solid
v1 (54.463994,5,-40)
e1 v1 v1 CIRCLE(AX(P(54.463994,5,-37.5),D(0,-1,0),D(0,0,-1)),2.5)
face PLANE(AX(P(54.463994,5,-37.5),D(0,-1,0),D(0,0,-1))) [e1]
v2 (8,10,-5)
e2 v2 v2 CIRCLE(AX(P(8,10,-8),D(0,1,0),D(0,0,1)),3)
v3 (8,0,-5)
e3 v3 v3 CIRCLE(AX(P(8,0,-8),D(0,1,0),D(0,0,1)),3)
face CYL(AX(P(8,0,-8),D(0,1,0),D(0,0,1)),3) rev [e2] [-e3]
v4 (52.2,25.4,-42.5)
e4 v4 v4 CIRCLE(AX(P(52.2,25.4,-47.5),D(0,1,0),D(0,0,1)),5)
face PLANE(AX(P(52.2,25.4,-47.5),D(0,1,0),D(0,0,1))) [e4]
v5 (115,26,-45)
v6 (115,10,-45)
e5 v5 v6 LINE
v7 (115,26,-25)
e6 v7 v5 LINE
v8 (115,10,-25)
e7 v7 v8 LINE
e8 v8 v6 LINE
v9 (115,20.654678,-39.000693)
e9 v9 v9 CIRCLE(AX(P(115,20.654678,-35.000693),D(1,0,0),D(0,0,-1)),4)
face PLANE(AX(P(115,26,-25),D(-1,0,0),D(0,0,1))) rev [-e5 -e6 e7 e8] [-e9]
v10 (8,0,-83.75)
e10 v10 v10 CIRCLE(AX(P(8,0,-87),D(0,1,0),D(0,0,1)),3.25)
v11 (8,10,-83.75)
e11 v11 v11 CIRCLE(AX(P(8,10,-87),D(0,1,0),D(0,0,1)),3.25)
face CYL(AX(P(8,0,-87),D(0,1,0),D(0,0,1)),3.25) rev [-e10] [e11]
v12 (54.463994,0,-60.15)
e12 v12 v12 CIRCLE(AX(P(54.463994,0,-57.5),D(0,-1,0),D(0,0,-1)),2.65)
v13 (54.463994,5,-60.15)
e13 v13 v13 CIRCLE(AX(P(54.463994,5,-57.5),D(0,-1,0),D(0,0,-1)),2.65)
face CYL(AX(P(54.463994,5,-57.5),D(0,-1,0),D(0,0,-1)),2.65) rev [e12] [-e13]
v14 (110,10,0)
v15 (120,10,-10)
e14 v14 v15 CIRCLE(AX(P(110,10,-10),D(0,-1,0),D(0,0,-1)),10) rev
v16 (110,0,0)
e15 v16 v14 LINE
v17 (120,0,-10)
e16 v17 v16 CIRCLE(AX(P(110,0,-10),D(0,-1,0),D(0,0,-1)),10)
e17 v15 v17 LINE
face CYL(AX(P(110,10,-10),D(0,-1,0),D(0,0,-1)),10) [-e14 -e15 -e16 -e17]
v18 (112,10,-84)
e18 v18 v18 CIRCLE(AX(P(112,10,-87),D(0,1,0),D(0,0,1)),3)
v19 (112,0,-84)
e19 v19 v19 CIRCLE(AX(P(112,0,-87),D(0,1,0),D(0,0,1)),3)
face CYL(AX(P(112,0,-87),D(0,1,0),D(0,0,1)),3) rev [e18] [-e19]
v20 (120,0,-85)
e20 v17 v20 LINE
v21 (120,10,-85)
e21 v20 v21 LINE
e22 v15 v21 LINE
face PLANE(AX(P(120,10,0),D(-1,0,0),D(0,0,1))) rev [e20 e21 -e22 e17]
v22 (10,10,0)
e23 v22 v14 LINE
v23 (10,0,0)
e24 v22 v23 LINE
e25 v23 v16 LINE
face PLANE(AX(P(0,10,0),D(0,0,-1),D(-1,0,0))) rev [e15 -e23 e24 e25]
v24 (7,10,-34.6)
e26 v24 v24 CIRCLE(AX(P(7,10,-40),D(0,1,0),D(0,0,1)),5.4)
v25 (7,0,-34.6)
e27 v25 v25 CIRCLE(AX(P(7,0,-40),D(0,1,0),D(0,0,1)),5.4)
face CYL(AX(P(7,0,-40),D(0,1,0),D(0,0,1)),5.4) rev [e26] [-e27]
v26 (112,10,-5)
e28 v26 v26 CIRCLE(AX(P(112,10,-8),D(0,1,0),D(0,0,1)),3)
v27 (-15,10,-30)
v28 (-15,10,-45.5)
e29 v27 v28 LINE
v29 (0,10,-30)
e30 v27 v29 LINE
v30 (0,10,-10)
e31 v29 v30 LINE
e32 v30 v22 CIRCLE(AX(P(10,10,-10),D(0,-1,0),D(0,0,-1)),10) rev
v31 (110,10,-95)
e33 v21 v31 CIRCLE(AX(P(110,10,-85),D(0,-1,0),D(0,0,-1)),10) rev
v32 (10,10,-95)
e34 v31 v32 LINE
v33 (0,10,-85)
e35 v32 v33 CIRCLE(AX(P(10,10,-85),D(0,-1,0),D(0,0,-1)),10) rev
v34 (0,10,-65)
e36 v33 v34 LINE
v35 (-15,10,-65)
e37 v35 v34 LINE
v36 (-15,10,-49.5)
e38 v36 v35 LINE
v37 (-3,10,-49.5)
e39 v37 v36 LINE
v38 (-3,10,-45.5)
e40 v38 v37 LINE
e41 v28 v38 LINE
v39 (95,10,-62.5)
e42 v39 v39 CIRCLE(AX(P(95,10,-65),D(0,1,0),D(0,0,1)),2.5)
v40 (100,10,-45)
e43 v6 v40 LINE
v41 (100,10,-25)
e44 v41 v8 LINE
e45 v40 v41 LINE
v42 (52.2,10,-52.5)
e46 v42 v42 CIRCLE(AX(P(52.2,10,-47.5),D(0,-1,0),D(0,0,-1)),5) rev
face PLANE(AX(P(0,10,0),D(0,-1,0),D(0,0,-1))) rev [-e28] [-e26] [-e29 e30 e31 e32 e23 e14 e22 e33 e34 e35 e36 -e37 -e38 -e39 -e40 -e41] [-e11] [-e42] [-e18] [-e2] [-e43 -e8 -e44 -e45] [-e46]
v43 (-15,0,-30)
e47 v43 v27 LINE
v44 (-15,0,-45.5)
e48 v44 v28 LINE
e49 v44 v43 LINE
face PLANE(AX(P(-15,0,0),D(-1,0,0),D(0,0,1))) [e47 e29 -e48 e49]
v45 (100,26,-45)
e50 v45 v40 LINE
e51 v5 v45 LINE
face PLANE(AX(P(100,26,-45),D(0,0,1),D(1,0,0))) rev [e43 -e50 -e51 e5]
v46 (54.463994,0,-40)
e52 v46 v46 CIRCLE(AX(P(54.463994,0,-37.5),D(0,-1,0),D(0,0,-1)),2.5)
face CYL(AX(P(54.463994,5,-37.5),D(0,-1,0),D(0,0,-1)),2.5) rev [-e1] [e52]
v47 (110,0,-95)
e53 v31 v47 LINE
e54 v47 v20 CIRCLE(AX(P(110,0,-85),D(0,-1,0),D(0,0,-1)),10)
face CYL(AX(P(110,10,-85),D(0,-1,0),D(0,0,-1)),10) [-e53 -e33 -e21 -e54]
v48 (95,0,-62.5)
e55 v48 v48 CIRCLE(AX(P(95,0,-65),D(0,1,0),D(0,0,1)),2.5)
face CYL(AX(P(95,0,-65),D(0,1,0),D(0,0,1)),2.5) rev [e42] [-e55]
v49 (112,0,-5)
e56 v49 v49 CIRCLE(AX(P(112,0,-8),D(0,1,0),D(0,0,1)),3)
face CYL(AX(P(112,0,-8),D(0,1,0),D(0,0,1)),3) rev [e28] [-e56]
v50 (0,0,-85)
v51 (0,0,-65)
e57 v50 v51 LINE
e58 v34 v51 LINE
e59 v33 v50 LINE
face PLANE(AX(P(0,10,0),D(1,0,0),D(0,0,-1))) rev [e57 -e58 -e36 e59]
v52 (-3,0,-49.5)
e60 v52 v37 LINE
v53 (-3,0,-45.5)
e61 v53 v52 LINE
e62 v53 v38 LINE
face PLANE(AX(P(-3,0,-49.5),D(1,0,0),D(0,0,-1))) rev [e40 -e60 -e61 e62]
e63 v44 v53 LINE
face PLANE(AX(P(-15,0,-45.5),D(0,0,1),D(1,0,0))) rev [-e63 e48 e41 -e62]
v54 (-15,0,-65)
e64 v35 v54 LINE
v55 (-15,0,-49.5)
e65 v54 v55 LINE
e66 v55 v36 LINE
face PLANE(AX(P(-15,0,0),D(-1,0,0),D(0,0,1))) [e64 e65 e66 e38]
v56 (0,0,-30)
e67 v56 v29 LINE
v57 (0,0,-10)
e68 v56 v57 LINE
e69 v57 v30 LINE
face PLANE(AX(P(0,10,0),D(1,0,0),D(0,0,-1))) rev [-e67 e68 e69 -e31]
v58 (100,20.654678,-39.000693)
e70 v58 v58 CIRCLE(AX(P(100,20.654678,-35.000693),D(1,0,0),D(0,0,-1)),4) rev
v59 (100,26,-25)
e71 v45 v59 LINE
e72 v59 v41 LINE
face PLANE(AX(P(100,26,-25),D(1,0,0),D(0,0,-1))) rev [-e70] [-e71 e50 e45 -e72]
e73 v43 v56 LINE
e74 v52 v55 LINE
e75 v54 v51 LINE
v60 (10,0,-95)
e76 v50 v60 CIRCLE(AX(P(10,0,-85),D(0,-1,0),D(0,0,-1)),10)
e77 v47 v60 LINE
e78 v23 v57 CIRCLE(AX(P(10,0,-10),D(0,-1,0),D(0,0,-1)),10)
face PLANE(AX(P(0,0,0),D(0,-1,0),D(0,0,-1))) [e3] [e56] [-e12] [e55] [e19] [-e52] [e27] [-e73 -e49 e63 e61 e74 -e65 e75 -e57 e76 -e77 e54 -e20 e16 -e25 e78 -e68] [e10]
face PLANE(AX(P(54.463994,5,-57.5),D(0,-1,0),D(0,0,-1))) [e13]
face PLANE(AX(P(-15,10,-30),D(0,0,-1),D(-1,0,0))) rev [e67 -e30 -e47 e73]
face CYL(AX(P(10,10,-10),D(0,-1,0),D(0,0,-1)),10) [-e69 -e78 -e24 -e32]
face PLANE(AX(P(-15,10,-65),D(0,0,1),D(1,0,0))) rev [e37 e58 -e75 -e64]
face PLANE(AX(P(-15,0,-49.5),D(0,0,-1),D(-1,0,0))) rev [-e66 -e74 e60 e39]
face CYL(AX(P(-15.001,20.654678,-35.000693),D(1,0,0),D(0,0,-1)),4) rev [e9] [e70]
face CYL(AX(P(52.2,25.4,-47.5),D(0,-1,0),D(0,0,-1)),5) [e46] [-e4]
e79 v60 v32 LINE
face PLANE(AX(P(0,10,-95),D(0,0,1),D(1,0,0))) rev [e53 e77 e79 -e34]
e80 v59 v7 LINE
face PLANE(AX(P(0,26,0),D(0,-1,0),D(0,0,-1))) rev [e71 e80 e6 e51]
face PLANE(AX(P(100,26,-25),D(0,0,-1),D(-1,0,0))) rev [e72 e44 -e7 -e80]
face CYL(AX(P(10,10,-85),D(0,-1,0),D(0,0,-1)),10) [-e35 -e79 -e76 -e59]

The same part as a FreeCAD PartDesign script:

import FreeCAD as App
import Part
import Sketcher
from FreeCAD import Vector
Q = App.Units.Quantity


def edges_at(feature, points):
    """Names of the edges that pass closest to the given points."""
    edges = feature.Shape.Edges
    near = lambda p: min(range(len(edges)), key=lambda i: edges[i].distToShape(Part.Vertex(*p))[0])
    return sorted({f"Edge{near(p) + 1}" for p in points})

doc = App.newDocument("Part")
body = doc.addObject("PartDesign::Body", "Body")

sketch1 = body.newObject("Sketcher::SketchObject", "Sketch")
sketch1.AttachmentSupport = (doc.getObject("XZ_Plane"), [""])
sketch1.MapMode = "FlatFace"
sketch1.addGeometry(Part.LineSegment(Vector(0, -95, 0), Vector(0, 0, 0)), False)
sketch1.addGeometry(Part.LineSegment(Vector(0, 0, 0), Vector(120, 0, 0)), False)
sketch1.addGeometry(Part.LineSegment(Vector(120, 0, 0), Vector(120, -95, 0)), False)
sketch1.addGeometry(Part.LineSegment(Vector(120, -95, 0), Vector(0, -95, 0)), False)
sketch1.addConstraint(Sketcher.Constraint("Coincident", 0, 2, 1, 1))
sketch1.addConstraint(Sketcher.Constraint("Coincident", 1, 2, 2, 1))
sketch1.addConstraint(Sketcher.Constraint("Coincident", 2, 2, 3, 1))
sketch1.addConstraint(Sketcher.Constraint("Coincident", 3, 2, 0, 1))
sketch1.addConstraint(Sketcher.Constraint("Vertical", 0))
sketch1.addConstraint(Sketcher.Constraint("Horizontal", 1))
sketch1.addConstraint(Sketcher.Constraint("Vertical", 2))
sketch1.addConstraint(Sketcher.Constraint("Horizontal", 3))
sketch1.addConstraint(Sketcher.Constraint("Coincident", 0, 2, -1, 1))
sketch1.addConstraint(Sketcher.Constraint("DistanceX", 1, 1, 1, 2, Q("120 mm")))
sketch1.addConstraint(Sketcher.Constraint("DistanceY", 0, 1, 0, 2, Q("95 mm")))
pad1 = body.newObject("PartDesign::Pad", "Pad")
pad1.Profile = sketch1
pad1.Length = 10
pad1.Reversed = True
doc.recompute()

fillet = body.newObject("PartDesign::Fillet", "Fillet")
fillet.Base = (pad1, edges_at(pad1, [
    (0, 5, -95),
    (120, 5, -95),
    (120, 5, 0),
    (0, 5, 0),
]))
fillet.Radius = 10

sketch2 = body.newObject("Sketcher::SketchObject", "Sketch001")
sketch2.AttachmentSupport = (doc.getObject("XZ_Plane"), [""])
sketch2.MapMode = "FlatFace"
sketch2.AttachmentOffset = App.Placement(Vector(0, 0, -10), App.Rotation())
sketch2.addGeometry(Part.Circle(Vector(52, -48, 0), Vector(0, 0, 1), 5), False)
sketch2.addConstraint(Sketcher.Constraint("Diameter", 0, Q("10 mm")))
sketch2.addConstraint(Sketcher.Constraint("DistanceX", -1, 1, 0, 3, Q("52.2 mm")))
sketch2.addConstraint(Sketcher.Constraint("DistanceY", 0, 3, -1, 1, Q("47.5 mm")))
pad2 = body.newObject("PartDesign::Pad", "Pad001")
pad2.Profile = sketch2
pad2.Length = 15.4
pad2.Reversed = True

sketch3 = body.newObject("Sketcher::SketchObject", "Sketch002")
sketch3.AttachmentSupport = (doc.getObject("XZ_Plane"), [""])
sketch3.MapMode = "FlatFace"
sketch3.AttachmentOffset = App.Placement(Vector(0, 0, -10), App.Rotation())
sketch3.addGeometry(Part.LineSegment(Vector(100, -45, 0), Vector(100, -25, 0)), False)
sketch3.addGeometry(Part.LineSegment(Vector(100, -25, 0), Vector(115, -25, 0)), False)
sketch3.addGeometry(Part.LineSegment(Vector(115, -25, 0), Vector(115, -45, 0)), False)
sketch3.addGeometry(Part.LineSegment(Vector(115, -45, 0), Vector(100, -45, 0)), False)
sketch3.addConstraint(Sketcher.Constraint("Coincident", 0, 2, 1, 1))
sketch3.addConstraint(Sketcher.Constraint("Coincident", 1, 2, 2, 1))
sketch3.addConstraint(Sketcher.Constraint("Coincident", 2, 2, 3, 1))
sketch3.addConstraint(Sketcher.Constraint("Coincident", 3, 2, 0, 1))
sketch3.addConstraint(Sketcher.Constraint("Vertical", 0))
sketch3.addConstraint(Sketcher.Constraint("Horizontal", 1))
sketch3.addConstraint(Sketcher.Constraint("Vertical", 2))
sketch3.addConstraint(Sketcher.Constraint("Horizontal", 3))
sketch3.addConstraint(Sketcher.Constraint("DistanceX", 1, 1, 1, 2, Q("15 mm")))
sketch3.addConstraint(Sketcher.Constraint("DistanceY", 0, 1, 0, 2, Q("20 mm")))
sketch3.addConstraint(Sketcher.Constraint("DistanceX", -1, 1, 0, 2, Q("100 mm")))
sketch3.addConstraint(Sketcher.Constraint("DistanceY", 0, 2, -1, 1, Q("25 mm")))
pad3 = body.newObject("PartDesign::Pad", "Pad002")
pad3.Profile = sketch3
pad3.Length = 16
pad3.Reversed = True

sketch4 = body.newObject("Sketcher::SketchObject", "Sketch003")
sketch4.AttachmentSupport = (doc.getObject("YZ_Plane"), [""])
sketch4.MapMode = "FlatFace"
sketch4.addGeometry(Part.LineSegment(Vector(10, -65, 0), Vector(0, -65, 0)), False)
sketch4.addGeometry(Part.LineSegment(Vector(0, -65, 0), Vector(0, -30, 0)), False)
sketch4.addGeometry(Part.LineSegment(Vector(0, -30, 0), Vector(10, -30, 0)), False)
sketch4.addGeometry(Part.LineSegment(Vector(10, -30, 0), Vector(10, -65, 0)), False)
sketch4.addConstraint(Sketcher.Constraint("Coincident", 0, 2, 1, 1))
sketch4.addConstraint(Sketcher.Constraint("Coincident", 1, 2, 2, 1))
sketch4.addConstraint(Sketcher.Constraint("Coincident", 2, 2, 3, 1))
sketch4.addConstraint(Sketcher.Constraint("Coincident", 3, 2, 0, 1))
sketch4.addConstraint(Sketcher.Constraint("Horizontal", 0))
sketch4.addConstraint(Sketcher.Constraint("Vertical", 1))
sketch4.addConstraint(Sketcher.Constraint("Horizontal", 2))
sketch4.addConstraint(Sketcher.Constraint("Vertical", 3))
sketch4.addConstraint(Sketcher.Constraint("PointOnObject", 0, 2, -2))
sketch4.addConstraint(Sketcher.Constraint("DistanceX", 0, 2, 0, 1, Q("10 mm")))
sketch4.addConstraint(Sketcher.Constraint("DistanceY", 1, 1, 1, 2, Q("35 mm")))
sketch4.addConstraint(Sketcher.Constraint("DistanceY", 0, 2, -1, 1, Q("65 mm")))
pad4 = body.newObject("PartDesign::Pad", "Pad003")
pad4.Profile = sketch4
pad4.Length = 15
pad4.Reversed = True

sketch5 = body.newObject("Sketcher::SketchObject", "Sketch004")
sketch5.AttachmentSupport = (doc.getObject("XZ_Plane"), [""])
sketch5.MapMode = "FlatFace"
sketch5.AttachmentOffset = App.Placement(Vector(0, 0, -10), App.Rotation())
sketch5.addGeometry(Part.LineSegment(Vector(-15, -49.5, 0), Vector(-15, -45.5, 0)), False)
sketch5.addGeometry(Part.LineSegment(Vector(-15, -45.5, 0), Vector(-3, -45.5, 0)), False)
sketch5.addGeometry(Part.LineSegment(Vector(-3, -45.5, 0), Vector(-3, -49.5, 0)), False)
sketch5.addGeometry(Part.LineSegment(Vector(-3, -49.5, 0), Vector(-15, -49.5, 0)), False)
sketch5.addConstraint(Sketcher.Constraint("Coincident", 0, 2, 1, 1))
sketch5.addConstraint(Sketcher.Constraint("Coincident", 1, 2, 2, 1))
sketch5.addConstraint(Sketcher.Constraint("Coincident", 2, 2, 3, 1))
sketch5.addConstraint(Sketcher.Constraint("Coincident", 3, 2, 0, 1))
sketch5.addConstraint(Sketcher.Constraint("Vertical", 0))
sketch5.addConstraint(Sketcher.Constraint("Horizontal", 1))
sketch5.addConstraint(Sketcher.Constraint("Vertical", 2))
sketch5.addConstraint(Sketcher.Constraint("Horizontal", 3))
sketch5.addConstraint(Sketcher.Constraint("DistanceX", 1, 1, 1, 2, Q("12 mm")))
sketch5.addConstraint(Sketcher.Constraint("DistanceY", 0, 1, 0, 2, Q("4 mm")))
sketch5.addConstraint(Sketcher.Constraint("DistanceX", 0, 2, -1, 1, Q("15 mm")))
sketch5.addConstraint(Sketcher.Constraint("DistanceY", 0, 2, -1, 1, Q("45.5 mm")))
pocket1 = body.newObject("PartDesign::Pocket", "Pocket")
pocket1.Profile = sketch5
pocket1.Type = "ThroughAll"
pocket1.Reversed = True

sketch6 = body.newObject("Sketcher::SketchObject", "Sketch005")
sketch6.AttachmentSupport = (doc.getObject("XZ_Plane"), [""])
sketch6.MapMode = "FlatFace"
sketch6.AttachmentOffset = App.Placement(Vector(0, 0, -10), App.Rotation())
sketch6.addGeometry(Part.Circle(Vector(7, -40, 0), Vector(0, 0, 1), 5), False)
sketch6.addConstraint(Sketcher.Constraint("Diameter", 0, Q("10.8 mm")))
sketch6.addConstraint(Sketcher.Constraint("DistanceX", -1, 1, 0, 3, Q("7 mm")))
sketch6.addConstraint(Sketcher.Constraint("DistanceY", 0, 3, -1, 1, Q("40 mm")))
pocket2 = body.newObject("PartDesign::Pocket", "Pocket001")
pocket2.Profile = sketch6
pocket2.Type = "ThroughAll"
pocket2.Reversed = True

sketch7 = body.newObject("Sketcher::SketchObject", "Sketch006")
sketch7.AttachmentSupport = (doc.getObject("XZ_Plane"), [""])
sketch7.MapMode = "FlatFace"
sketch7.AttachmentOffset = App.Placement(Vector(0, 0, -10), App.Rotation())
sketch7.addGeometry(Part.Circle(Vector(95, -65, 0), Vector(0, 0, 1), 2.5), False)
sketch7.addConstraint(Sketcher.Constraint("Diameter", 0, Q("5 mm")))
sketch7.addConstraint(Sketcher.Constraint("DistanceX", -1, 1, 0, 3, Q("95 mm")))
sketch7.addConstraint(Sketcher.Constraint("DistanceY", 0, 3, -1, 1, Q("65 mm")))
pocket3 = body.newObject("PartDesign::Pocket", "Pocket002")
pocket3.Profile = sketch7
pocket3.Type = "ThroughAll"
pocket3.Reversed = True

sketch8 = body.newObject("Sketcher::SketchObject", "Sketch007")
sketch8.AttachmentSupport = (doc.getObject("YZ_Plane"), [""])
sketch8.MapMode = "FlatFace"
sketch8.AttachmentOffset = App.Placement(Vector(0, 0, 115), App.Rotation())
sketch8.addGeometry(Part.Circle(Vector(20.7, -35, 0), Vector(0, 0, 1), 4), False)
sketch8.addConstraint(Sketcher.Constraint("Diameter", 0, Q("8 mm")))
sketch8.addConstraint(Sketcher.Constraint("DistanceX", -1, 1, 0, 3, Q("20.654678 mm")))
sketch8.addConstraint(Sketcher.Constraint("DistanceY", 0, 3, -1, 1, Q("35.000693 mm")))
pocket4 = body.newObject("PartDesign::Pocket", "Pocket003")
pocket4.Profile = sketch8
pocket4.Type = "UpToFirst"

sketch9 = body.newObject("Sketcher::SketchObject", "Sketch008")
sketch9.AttachmentSupport = (doc.getObject("XZ_Plane"), [""])
sketch9.MapMode = "FlatFace"
sketch9.AttachmentOffset = App.Placement(Vector(0, 0, -10), App.Rotation())
sketch9.addGeometry(Part.Circle(Vector(8, -87, 0), Vector(0, 0, 1), 3.2), False)
sketch9.addGeometry(Part.Circle(Vector(112, -87, 0), Vector(0, 0, 1), 3), False)
sketch9.addGeometry(Part.Circle(Vector(8, -8, 0), Vector(0, 0, 1), 3), False)
sketch9.addGeometry(Part.Circle(Vector(112, -8, 0), Vector(0, 0, 1), 3), False)
sketch9.addConstraint(Sketcher.Constraint("Equal", 1, 2))
sketch9.addConstraint(Sketcher.Constraint("Equal", 2, 3))
sketch9.addConstraint(Sketcher.Constraint("Horizontal", 0, 3, 1, 3))
sketch9.addConstraint(Sketcher.Constraint("Horizontal", 2, 3, 3, 3))
sketch9.addConstraint(Sketcher.Constraint("Vertical", 0, 3, 2, 3))
sketch9.addConstraint(Sketcher.Constraint("Vertical", 1, 3, 3, 3))
sketch9.addConstraint(Sketcher.Constraint("Diameter", 1, Q("6 mm")))
sketch9.addConstraint(Sketcher.Constraint("Diameter", 0, Q("6.5 mm")))
sketch9.addConstraint(Sketcher.Constraint("DistanceX", -1, 1, 0, 3, Q("8 mm")))
sketch9.addConstraint(Sketcher.Constraint("DistanceY", 0, 3, -1, 1, Q("87 mm")))
sketch9.addConstraint(Sketcher.Constraint("DistanceX", -1, 1, 1, 3, Q("112 mm")))
sketch9.addConstraint(Sketcher.Constraint("DistanceY", 2, 3, -1, 1, Q("8 mm")))
pocket5 = body.newObject("PartDesign::Pocket", "Pocket004")
pocket5.Profile = sketch9
pocket5.Type = "ThroughAll"
pocket5.Reversed = True

sketch10 = body.newObject("Sketcher::SketchObject", "Sketch009")
sketch10.AttachmentSupport = (doc.getObject("XZ_Plane"), [""])
sketch10.MapMode = "FlatFace"
sketch10.addGeometry(Part.Circle(Vector(54.5, -37.5, 0), Vector(0, 0, 1), 2.5), False)
sketch10.addGeometry(Part.Circle(Vector(54.5, -57.5, 0), Vector(0, 0, 1), 2.6), False)
sketch10.addConstraint(Sketcher.Constraint("Vertical", 0, 3, 1, 3))
sketch10.addConstraint(Sketcher.Constraint("Diameter", 0, Q("5 mm")))
sketch10.addConstraint(Sketcher.Constraint("Diameter", 1, Q("5.3 mm")))
sketch10.addConstraint(Sketcher.Constraint("DistanceY", 1, 3, 0, 3, Q("20 mm")))
sketch10.addConstraint(Sketcher.Constraint("DistanceY", 0, 3, -1, 1, Q("37.5 mm")))
sketch10.addConstraint(Sketcher.Constraint("DistanceX", -1, 1, 0, 3, Q("54.463994 mm")))
pocket6 = body.newObject("PartDesign::Pocket", "Pocket005")
pocket6.Profile = sketch10
pocket6.Length = 5

doc.recompute()
